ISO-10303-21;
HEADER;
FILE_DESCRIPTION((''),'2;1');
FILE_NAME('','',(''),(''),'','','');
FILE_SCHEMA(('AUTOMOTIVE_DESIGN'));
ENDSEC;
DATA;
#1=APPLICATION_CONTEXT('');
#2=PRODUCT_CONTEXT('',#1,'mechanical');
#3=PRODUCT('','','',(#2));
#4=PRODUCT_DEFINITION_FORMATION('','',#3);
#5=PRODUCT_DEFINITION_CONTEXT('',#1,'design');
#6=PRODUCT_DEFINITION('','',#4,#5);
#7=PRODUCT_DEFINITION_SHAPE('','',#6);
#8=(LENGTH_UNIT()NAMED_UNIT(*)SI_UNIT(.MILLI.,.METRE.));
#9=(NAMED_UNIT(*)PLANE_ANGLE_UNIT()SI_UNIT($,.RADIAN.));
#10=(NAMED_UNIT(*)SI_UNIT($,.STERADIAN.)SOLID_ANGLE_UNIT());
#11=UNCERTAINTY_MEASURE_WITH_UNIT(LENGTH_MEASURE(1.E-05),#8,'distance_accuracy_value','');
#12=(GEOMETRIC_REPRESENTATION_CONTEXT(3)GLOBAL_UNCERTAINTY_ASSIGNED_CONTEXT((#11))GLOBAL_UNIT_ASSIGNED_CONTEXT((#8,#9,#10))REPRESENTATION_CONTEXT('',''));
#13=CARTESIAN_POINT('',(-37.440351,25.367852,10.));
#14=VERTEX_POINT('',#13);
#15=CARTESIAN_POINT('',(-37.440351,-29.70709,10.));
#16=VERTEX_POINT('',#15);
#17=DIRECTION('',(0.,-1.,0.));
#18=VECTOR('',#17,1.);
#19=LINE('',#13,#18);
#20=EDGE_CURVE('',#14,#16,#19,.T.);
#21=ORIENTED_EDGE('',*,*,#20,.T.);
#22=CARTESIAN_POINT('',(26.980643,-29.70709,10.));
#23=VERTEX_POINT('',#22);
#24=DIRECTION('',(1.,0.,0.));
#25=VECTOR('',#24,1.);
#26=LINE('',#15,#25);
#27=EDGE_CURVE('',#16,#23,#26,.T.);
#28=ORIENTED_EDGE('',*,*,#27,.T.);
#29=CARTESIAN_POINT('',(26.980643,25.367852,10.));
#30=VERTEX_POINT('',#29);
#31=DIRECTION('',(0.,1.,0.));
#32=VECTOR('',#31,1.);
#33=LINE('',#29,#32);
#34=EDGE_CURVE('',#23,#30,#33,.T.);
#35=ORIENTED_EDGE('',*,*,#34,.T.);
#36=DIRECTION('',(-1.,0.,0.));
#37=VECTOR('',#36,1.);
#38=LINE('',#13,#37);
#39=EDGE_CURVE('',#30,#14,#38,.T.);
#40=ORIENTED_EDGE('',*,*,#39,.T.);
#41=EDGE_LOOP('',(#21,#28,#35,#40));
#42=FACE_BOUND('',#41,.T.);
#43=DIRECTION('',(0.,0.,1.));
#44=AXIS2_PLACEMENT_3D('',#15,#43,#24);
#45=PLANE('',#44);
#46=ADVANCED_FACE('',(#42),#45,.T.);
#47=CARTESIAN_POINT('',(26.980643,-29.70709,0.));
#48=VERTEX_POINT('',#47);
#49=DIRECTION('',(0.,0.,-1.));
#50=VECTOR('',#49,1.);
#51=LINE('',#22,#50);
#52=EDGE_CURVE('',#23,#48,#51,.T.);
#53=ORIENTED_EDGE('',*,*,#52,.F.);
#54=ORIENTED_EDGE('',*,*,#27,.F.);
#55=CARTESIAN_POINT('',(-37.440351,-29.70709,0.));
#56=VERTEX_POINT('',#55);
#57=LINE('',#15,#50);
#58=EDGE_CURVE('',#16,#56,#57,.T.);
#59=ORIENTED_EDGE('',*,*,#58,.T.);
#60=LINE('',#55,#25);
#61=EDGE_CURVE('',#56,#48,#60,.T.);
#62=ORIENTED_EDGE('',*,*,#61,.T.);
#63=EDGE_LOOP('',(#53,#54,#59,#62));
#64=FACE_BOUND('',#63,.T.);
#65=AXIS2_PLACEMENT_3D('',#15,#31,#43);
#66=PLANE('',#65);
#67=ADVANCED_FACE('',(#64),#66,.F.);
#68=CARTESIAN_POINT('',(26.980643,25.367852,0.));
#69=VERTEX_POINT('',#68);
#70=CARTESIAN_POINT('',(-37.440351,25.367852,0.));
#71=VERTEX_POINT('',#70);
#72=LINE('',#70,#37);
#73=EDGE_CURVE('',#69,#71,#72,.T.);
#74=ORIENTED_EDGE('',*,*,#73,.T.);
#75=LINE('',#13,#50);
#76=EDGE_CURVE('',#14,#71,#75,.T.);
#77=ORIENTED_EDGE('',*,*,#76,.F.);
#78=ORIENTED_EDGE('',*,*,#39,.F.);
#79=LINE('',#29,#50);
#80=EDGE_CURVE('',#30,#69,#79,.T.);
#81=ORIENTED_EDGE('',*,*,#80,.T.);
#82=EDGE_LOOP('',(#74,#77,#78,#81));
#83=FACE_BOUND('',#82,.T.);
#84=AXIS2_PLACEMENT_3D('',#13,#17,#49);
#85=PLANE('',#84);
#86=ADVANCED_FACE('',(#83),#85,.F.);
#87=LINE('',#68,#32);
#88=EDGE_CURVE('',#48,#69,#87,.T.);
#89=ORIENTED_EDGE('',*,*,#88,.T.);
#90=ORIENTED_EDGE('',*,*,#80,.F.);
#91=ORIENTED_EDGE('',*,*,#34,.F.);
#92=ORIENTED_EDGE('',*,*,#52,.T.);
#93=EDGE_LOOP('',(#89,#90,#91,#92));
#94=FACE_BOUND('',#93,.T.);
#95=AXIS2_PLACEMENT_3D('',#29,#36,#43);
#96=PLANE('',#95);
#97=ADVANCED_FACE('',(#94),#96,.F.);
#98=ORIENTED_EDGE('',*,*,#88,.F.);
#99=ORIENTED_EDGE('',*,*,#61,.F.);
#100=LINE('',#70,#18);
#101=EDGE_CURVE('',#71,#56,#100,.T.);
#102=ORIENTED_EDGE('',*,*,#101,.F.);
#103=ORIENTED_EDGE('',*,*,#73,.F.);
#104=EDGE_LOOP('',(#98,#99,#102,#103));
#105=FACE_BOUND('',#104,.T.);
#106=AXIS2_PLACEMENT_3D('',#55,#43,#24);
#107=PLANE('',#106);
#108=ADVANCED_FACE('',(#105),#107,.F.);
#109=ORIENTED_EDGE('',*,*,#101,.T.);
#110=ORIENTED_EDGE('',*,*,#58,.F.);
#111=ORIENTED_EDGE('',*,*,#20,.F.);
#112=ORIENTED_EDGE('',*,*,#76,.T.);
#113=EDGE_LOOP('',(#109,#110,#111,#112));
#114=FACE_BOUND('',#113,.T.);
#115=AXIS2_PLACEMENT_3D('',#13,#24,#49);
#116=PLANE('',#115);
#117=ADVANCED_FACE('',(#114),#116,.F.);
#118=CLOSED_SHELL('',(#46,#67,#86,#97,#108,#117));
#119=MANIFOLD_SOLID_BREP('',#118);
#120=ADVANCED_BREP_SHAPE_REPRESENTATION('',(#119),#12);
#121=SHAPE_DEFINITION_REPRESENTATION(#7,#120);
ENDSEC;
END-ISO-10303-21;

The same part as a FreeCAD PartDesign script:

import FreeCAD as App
import Part
import Sketcher
from FreeCAD import Vector
Q = App.Units.Quantity

doc = App.newDocument("Part")
params = doc.addObject("Spreadsheet::Sheet", "Params")
for row, (alias, value) in enumerate([
    ("pad1_length", "10 mm"),
], start=1):
    params.set(f"A{row}", alias)
    params.set(f"B{row}", "=" + value)
    params.setAlias(f"B{row}", alias)

body = doc.addObject("PartDesign::Body", "Body")

# Sketch on XY plane
sketch1 = body.newObject("Sketcher::SketchObject", "Sketch")
sketch1.AttachmentSupport = (doc.getObject("XY_Plane"), [""])
sketch1.MapMode = "FlatFace"
sketch1.addGeometry([
    Part.LineSegment(Vector(-37, 25, 0), Vector(-37, -30, 0)),
    Part.LineSegment(Vector(-37, -30, 0), Vector(27, -30, 0)),
    Part.LineSegment(Vector(27, -30, 0), Vector(27, 25, 0)),
    Part.LineSegment(Vector(27, 25, 0), Vector(-37, 25, 0)),
], False)
sketch1.addConstraint([
    Sketcher.Constraint("Coincident", 0, 2, 1, 1),
    Sketcher.Constraint("Coincident", 1, 2, 2, 1),
    Sketcher.Constraint("Coincident", 2, 2, 3, 1),
    Sketcher.Constraint("Coincident", 3, 2, 0, 1),
    Sketcher.Constraint("Vertical", 0),
    Sketcher.Constraint("Horizontal", 1),
    Sketcher.Constraint("Vertical", 2),
    Sketcher.Constraint("Horizontal", 3),
    Sketcher.Constraint("DistanceX", 1, 1, 1, 2, Q("64.420994 mm")),
    Sketcher.Constraint("DistanceY", 0, 2, 0, 1, Q("55.074943 mm")),
    Sketcher.Constraint("DistanceX", 0, 2, -1, 1, Q("37.440351 mm")),
    Sketcher.Constraint("DistanceY", 0, 2, -1, 1, Q("29.70709 mm")),
])
pad1 = body.newObject("PartDesign::Pad", "Pad")
pad1.Profile = sketch1
pad1.setExpression("Length", "Params.pad1_length")

doc.recompute()
